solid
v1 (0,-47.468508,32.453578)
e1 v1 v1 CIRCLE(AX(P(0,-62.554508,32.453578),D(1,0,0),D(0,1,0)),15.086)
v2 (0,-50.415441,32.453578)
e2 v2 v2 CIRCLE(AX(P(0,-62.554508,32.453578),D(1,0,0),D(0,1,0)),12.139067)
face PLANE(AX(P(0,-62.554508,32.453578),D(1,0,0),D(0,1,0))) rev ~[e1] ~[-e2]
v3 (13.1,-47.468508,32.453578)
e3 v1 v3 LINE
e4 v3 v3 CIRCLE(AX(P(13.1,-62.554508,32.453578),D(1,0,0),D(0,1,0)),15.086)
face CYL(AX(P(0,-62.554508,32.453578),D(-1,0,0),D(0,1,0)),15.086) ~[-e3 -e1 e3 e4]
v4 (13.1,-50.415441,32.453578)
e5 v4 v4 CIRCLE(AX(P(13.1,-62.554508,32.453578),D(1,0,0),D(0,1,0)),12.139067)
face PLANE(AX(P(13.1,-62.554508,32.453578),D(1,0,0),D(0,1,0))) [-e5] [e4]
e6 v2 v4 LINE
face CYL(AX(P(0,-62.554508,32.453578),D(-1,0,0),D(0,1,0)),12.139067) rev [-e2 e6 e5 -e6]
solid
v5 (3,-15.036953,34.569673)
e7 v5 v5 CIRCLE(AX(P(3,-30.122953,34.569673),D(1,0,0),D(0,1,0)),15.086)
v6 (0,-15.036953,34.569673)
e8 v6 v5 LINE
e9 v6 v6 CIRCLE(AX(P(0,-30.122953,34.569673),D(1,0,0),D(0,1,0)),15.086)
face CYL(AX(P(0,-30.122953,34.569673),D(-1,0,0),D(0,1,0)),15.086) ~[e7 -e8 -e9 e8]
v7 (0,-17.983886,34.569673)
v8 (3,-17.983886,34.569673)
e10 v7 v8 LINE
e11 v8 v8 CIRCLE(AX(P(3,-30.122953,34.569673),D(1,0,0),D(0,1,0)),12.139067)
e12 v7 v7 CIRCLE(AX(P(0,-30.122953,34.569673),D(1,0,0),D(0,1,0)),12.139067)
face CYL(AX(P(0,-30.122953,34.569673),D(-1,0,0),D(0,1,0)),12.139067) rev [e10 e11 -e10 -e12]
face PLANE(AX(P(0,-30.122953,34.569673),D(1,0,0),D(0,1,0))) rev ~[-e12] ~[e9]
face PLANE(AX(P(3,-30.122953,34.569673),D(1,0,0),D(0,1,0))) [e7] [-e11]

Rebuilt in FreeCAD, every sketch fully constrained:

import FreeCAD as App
import Part
import Sketcher
from FreeCAD import Vector
Q = App.Units.Quantity

doc = App.newDocument("Part")
body = doc.addObject("PartDesign::Body", "Body")

# Sketch on YZ plane
sketch1 = body.newObject("Sketcher::SketchObject", "Sketch")
sketch1.AttachmentSupport = (doc.getObject("YZ_Plane"), [""])
sketch1.MapMode = "FlatFace"
sketch1.addGeometry([
    Part.Circle(Vector(-30, 35, 0), Vector(0, 0, 1), 15),
    Part.Circle(Vector(-30, 35, 0), Vector(0, 0, 1), 12),
], False)
sketch1.addConstraint([
    Sketcher.Constraint("Coincident", 1, 3, 0, 3),
    Sketcher.Constraint("Diameter", 0, Q("30.172 mm")),
    Sketcher.Constraint("Diameter", 1, Q("24.278134 mm")),
    Sketcher.Constraint("DistanceX", 0, 3, -1, 1, Q("30.122953 mm")),
    Sketcher.Constraint("DistanceY", -1, 1, 0, 3, Q("34.569673 mm")),
])
pad1 = body.newObject("PartDesign::Pad", "Pad")
pad1.Profile = sketch1
pad1.Length = 3
body2 = doc.addObject("PartDesign::Body", "Body001")

# Sketch on YZ plane
sketch2 = body2.newObject("Sketcher::SketchObject", "Sketch001")
sketch2.AttachmentSupport = (doc.getObject("YZ_Plane001"), [""])
sketch2.MapMode = "FlatFace"
sketch2.addGeometry([
    Part.Circle(Vector(-63, 32, 0), Vector(0, 0, 1), 15),
    Part.Circle(Vector(-63, 32, 0), Vector(0, 0, 1), 12),
], False)
sketch2.addConstraint([
    Sketcher.Constraint("Coincident", 1, 3, 0, 3),
    Sketcher.Constraint("Diameter", 0, Q("30.172 mm")),
    Sketcher.Constraint("Diameter", 1, Q("24.278134 mm")),
    Sketcher.Constraint("DistanceX", 0, 3, -1, 1, Q("62.554508 mm")),
    Sketcher.Constraint("DistanceY", -1, 1, 0, 3, Q("32.453578 mm")),
])
pad2 = body2.newObject("PartDesign::Pad", "Pad001")
pad2.Profile = sketch2
pad2.Length = 13.1

doc.recompute()
